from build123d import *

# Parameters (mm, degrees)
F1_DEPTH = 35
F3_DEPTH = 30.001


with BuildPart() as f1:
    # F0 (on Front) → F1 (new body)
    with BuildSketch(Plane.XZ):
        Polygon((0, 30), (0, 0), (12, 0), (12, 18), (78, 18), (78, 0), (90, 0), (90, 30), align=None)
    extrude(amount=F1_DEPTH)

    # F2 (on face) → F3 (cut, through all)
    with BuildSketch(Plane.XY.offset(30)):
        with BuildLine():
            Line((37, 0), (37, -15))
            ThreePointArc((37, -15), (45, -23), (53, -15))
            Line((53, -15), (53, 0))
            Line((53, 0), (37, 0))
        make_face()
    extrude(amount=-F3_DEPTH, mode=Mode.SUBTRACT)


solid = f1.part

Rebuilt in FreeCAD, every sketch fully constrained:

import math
import FreeCAD as App
import Part
import Sketcher

doc = App.newDocument("Part")
body = doc.addObject("PartDesign::Body", "Body")

# Sketch on XZ plane
sketch1 = body.newObject("Sketcher::SketchObject", "Sketch")
sketch1.AttachmentSupport = (doc.getObject("XZ_Plane"), [""])
sketch1.MapMode = "FlatFace"
sketch1.addGeometry(Part.LineSegment(App.Vector(0, 30, 0), App.Vector(0, 0, 0)), False)
sketch1.addGeometry(Part.LineSegment(App.Vector(0, 0, 0), App.Vector(12, 0, 0)), False)
sketch1.addGeometry(Part.LineSegment(App.Vector(12, 0, 0), App.Vector(12, 18, 0)), False)
sketch1.addGeometry(Part.LineSegment(App.Vector(12, 18, 0), App.Vector(78, 18, 0)), False)
sketch1.addGeometry(Part.LineSegment(App.Vector(78, 18, 0), App.Vector(78, 0, 0)), False)
sketch1.addGeometry(Part.LineSegment(App.Vector(78, 0, 0), App.Vector(90, 0, 0)), False)
sketch1.addGeometry(Part.LineSegment(App.Vector(90, 0, 0), App.Vector(90, 30, 0)), False)
sketch1.addGeometry(Part.LineSegment(App.Vector(90, 30, 0), App.Vector(0, 30, 0)), False)
sketch1.addConstraint(Sketcher.Constraint("Coincident", 0, 2, 1, 1))
sketch1.addConstraint(Sketcher.Constraint("Coincident", 1, 2, 2, 1))
sketch1.addConstraint(Sketcher.Constraint("Coincident", 2, 2, 3, 1))
sketch1.addConstraint(Sketcher.Constraint("Coincident", 3, 2, 4, 1))
sketch1.addConstraint(Sketcher.Constraint("Coincident", 4, 2, 5, 1))
sketch1.addConstraint(Sketcher.Constraint("Coincident", 5, 2, 6, 1))
sketch1.addConstraint(Sketcher.Constraint("Coincident", 6, 2, 7, 1))
sketch1.addConstraint(Sketcher.Constraint("Coincident", 7, 2, 0, 1))
sketch1.addConstraint(Sketcher.Constraint("Vertical", 0))
sketch1.addConstraint(Sketcher.Constraint("Horizontal", 1))
sketch1.addConstraint(Sketcher.Constraint("Vertical", 2))
sketch1.addConstraint(Sketcher.Constraint("Horizontal", 3))
sketch1.addConstraint(Sketcher.Constraint("Vertical", 4))
sketch1.addConstraint(Sketcher.Constraint("Horizontal", 5))
sketch1.addConstraint(Sketcher.Constraint("Vertical", 6))
sketch1.addConstraint(Sketcher.Constraint("Horizontal", 7))
sketch1.addConstraint(Sketcher.Constraint("Coincident", 0, 2, -1, 1))
sketch1.addConstraint(Sketcher.Constraint("PointOnObject", 4, 2, -1))
sketch1.addConstraint(Sketcher.Constraint("Equal", 1, 5))
sketch1.addConstraint(Sketcher.Constraint("DistanceX", 1, 1, 1, 2, 12.0))
sketch1.addConstraint(Sketcher.Constraint("DistanceX", 3, 1, 3, 2, 66.0))
sketch1.addConstraint(Sketcher.Constraint("DistanceY", 0, 2, 0, 1, 30.0))
sketch1.addConstraint(Sketcher.Constraint("DistanceY", 2, 1, 2, 2, 18.0))
pad1 = body.newObject("PartDesign::Pad", "Pad")
pad1.Profile = sketch1
pad1.Length = 35

# Sketch on XY plane
sketch2 = body.newObject("Sketcher::SketchObject", "Sketch001")
sketch2.AttachmentSupport = (doc.getObject("XY_Plane"), [""])
sketch2.MapMode = "FlatFace"
sketch2.AttachmentOffset = App.Placement(App.Vector(0, 0, 30), App.Rotation())
sketch2.addGeometry(Part.LineSegment(App.Vector(37, 0, 0), App.Vector(37, -15, 0)), False)
sketch2.addGeometry(Part.ArcOfCircle(Part.Circle(App.Vector(45, -15, 0), App.Vector(0, 0, 1), 8), math.radians(180), math.radians(360)), False)
sketch2.addGeometry(Part.LineSegment(App.Vector(53, -15, 0), App.Vector(53, 0, 0)), False)
sketch2.addGeometry(Part.LineSegment(App.Vector(53, 0, 0), App.Vector(37, 0, 0)), False)
sketch2.addConstraint(Sketcher.Constraint("Tangent", 0, 2, 1, 1))
sketch2.addConstraint(Sketcher.Constraint("Tangent", 1, 2, 2, 1))
sketch2.addConstraint(Sketcher.Constraint("Coincident", 2, 2, 3, 1))
sketch2.addConstraint(Sketcher.Constraint("Coincident", 3, 2, 0, 1))
sketch2.addConstraint(Sketcher.Constraint("Vertical", 0))
sketch2.addConstraint(Sketcher.Constraint("Vertical", 2))
sketch2.addConstraint(Sketcher.Constraint("Horizontal", 3))
sketch2.addConstraint(Sketcher.Constraint("PointOnObject", 2, 2, -1))
sketch2.addConstraint(Sketcher.Constraint("Radius", 1, 8.0))
sketch2.addConstraint(Sketcher.Constraint("DistanceY", 0, 2, 0, 1, 15.0))
sketch2.addConstraint(Sketcher.Constraint("DistanceX", -1, 1, 1, 3, 45.0))
pocket1 = body.newObject("PartDesign::Pocket", "Pocket")
pocket1.Profile = sketch2
pocket1.Type = "ThroughAll"

doc.recompute()
